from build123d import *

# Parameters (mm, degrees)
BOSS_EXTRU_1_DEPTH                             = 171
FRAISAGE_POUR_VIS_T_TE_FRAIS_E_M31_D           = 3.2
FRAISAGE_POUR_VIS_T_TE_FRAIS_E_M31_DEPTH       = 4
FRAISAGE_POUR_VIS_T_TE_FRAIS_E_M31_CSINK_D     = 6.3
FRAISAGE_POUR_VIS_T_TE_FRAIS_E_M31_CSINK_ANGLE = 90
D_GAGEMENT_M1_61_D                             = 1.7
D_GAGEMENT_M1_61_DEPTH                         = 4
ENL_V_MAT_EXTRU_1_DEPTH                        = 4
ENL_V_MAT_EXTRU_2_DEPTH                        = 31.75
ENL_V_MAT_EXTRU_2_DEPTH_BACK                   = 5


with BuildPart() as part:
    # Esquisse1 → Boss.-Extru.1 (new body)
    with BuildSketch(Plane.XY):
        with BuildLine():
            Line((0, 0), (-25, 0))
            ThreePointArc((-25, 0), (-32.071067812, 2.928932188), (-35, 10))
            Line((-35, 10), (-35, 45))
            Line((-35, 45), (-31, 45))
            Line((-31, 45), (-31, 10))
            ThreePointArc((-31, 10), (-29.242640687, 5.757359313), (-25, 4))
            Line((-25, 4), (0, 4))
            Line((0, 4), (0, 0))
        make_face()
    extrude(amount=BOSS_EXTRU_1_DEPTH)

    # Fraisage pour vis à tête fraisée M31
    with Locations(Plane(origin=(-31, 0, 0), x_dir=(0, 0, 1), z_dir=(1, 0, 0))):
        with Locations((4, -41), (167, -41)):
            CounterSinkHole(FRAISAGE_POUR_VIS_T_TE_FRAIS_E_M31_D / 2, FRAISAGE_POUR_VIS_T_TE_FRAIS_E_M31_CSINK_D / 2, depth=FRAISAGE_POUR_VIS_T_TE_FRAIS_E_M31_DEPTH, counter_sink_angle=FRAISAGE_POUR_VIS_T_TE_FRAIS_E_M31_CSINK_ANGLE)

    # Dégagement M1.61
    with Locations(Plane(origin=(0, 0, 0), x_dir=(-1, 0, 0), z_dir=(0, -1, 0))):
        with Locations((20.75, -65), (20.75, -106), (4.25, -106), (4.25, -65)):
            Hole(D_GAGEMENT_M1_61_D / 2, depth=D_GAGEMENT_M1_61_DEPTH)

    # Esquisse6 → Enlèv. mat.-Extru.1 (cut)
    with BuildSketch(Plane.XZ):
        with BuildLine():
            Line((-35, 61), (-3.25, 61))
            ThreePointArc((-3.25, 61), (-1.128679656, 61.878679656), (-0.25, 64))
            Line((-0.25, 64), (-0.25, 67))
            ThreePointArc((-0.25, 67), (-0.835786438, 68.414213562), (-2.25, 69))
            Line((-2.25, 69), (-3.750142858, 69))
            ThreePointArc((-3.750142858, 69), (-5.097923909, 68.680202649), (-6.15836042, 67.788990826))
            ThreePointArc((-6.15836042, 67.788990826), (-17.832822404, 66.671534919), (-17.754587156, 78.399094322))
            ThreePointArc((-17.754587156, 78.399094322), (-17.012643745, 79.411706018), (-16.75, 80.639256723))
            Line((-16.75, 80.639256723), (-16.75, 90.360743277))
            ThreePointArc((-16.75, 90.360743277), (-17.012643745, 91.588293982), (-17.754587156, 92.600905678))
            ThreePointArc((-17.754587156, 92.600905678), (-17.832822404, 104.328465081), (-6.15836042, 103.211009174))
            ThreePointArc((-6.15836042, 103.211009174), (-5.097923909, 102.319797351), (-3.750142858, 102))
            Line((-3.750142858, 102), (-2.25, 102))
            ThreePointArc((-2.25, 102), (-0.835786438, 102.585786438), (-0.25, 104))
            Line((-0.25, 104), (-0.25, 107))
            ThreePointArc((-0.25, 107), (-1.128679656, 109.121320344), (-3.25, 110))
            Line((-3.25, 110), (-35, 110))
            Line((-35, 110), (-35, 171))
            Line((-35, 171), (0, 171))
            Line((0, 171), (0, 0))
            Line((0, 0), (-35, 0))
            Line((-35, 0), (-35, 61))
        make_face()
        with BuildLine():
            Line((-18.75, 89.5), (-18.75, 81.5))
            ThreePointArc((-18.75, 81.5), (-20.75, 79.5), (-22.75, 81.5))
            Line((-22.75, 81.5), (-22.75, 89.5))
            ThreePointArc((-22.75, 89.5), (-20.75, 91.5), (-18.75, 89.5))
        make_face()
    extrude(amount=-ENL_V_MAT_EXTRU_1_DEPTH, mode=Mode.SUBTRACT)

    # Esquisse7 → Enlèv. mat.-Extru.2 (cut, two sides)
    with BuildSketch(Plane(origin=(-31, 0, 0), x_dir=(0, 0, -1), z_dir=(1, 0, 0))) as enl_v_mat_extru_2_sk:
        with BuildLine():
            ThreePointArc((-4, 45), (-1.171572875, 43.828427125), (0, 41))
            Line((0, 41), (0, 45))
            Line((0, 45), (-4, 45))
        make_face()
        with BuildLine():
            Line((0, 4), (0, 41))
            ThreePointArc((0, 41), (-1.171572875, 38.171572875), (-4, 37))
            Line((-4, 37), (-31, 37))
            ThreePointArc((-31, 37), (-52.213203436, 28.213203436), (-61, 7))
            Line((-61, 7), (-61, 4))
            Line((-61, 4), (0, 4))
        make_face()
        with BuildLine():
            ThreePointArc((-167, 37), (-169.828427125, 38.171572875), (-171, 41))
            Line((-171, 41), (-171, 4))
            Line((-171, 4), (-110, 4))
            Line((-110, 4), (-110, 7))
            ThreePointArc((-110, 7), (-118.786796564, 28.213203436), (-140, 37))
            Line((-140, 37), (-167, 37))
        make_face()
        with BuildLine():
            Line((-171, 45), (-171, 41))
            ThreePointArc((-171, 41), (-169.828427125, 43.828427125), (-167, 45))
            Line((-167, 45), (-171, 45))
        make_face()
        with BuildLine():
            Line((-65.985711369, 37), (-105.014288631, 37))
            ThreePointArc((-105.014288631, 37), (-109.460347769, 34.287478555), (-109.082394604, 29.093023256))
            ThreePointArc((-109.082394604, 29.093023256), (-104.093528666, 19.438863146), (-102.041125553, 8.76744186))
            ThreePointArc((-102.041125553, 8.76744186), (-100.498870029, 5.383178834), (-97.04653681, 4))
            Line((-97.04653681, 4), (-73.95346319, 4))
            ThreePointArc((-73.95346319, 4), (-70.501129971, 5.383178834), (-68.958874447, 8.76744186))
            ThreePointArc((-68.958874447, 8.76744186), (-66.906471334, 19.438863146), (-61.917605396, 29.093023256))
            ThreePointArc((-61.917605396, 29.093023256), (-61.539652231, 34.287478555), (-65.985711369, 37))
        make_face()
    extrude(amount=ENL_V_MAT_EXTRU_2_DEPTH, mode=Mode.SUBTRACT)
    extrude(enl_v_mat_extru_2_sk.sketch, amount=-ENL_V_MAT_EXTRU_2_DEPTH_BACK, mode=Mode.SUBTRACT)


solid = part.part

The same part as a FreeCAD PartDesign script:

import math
import FreeCAD as App
import Part
import Sketcher
from FreeCAD import Vector
Q = App.Units.Quantity

doc = App.newDocument("Part")
body = doc.addObject("PartDesign::Body", "Body")

sketch1 = body.newObject("Sketcher::SketchObject", "Sketch")
sketch1.AttachmentSupport = (doc.getObject("XY_Plane"), [""])
sketch1.MapMode = "FlatFace"
sketch1.addGeometry(Part.LineSegment(Vector(-25, 0, 0), Vector(0, 0, 0)), False)
sketch1.addGeometry(Part.LineSegment(Vector(0, 0, 0), Vector(0, 4, 0)), False)
sketch1.addGeometry(Part.LineSegment(Vector(0, 4, 0), Vector(-25, 4, 0)), False)
sketch1.addGeometry(Part.ArcOfCircle(Part.Circle(Vector(-25, 10, 0), Vector(0, 0, 1), 6), math.radians(180), math.radians(270)), False)
sketch1.addGeometry(Part.LineSegment(Vector(-31, 10, 0), Vector(-31, 45, 0)), False)
sketch1.addGeometry(Part.LineSegment(Vector(-31, 45, 0), Vector(-35, 45, 0)), False)
sketch1.addGeometry(Part.LineSegment(Vector(-35, 45, 0), Vector(-35, 10, 0)), False)
sketch1.addGeometry(Part.ArcOfCircle(Part.Circle(Vector(-25, 10, 0), Vector(0, 0, 1), 10), math.radians(180), math.radians(270)), False)
sketch1.addConstraint(Sketcher.Constraint("Coincident", 0, 2, 1, 1))
sketch1.addConstraint(Sketcher.Constraint("Coincident", 1, 2, 2, 1))
sketch1.addConstraint(Sketcher.Constraint("Tangent", 2, 2, 3, 2))
sketch1.addConstraint(Sketcher.Constraint("Tangent", 3, 1, 4, 1))
sketch1.addConstraint(Sketcher.Constraint("Coincident", 4, 2, 5, 1))
sketch1.addConstraint(Sketcher.Constraint("Coincident", 5, 2, 6, 1))
sketch1.addConstraint(Sketcher.Constraint("Tangent", 6, 2, 7, 1))
sketch1.addConstraint(Sketcher.Constraint("Tangent", 7, 2, 0, 1))
sketch1.addConstraint(Sketcher.Constraint("Horizontal", 0))
sketch1.addConstraint(Sketcher.Constraint("Vertical", 1))
sketch1.addConstraint(Sketcher.Constraint("Horizontal", 2))
sketch1.addConstraint(Sketcher.Constraint("Vertical", 4))
sketch1.addConstraint(Sketcher.Constraint("Horizontal", 5))
sketch1.addConstraint(Sketcher.Constraint("Vertical", 6))
sketch1.addConstraint(Sketcher.Constraint("Coincident", 0, 2, -1, 1))
sketch1.addConstraint(Sketcher.Constraint("Coincident", 7, 3, 3, 3))
sketch1.addConstraint(Sketcher.Constraint("Radius", 3, Q("6 mm")))
sketch1.addConstraint(Sketcher.Constraint("Radius", 7, Q("10 mm")))
sketch1.addConstraint(Sketcher.Constraint("DistanceX", 0, 1, 0, 2, Q("25 mm")))
sketch1.addConstraint(Sketcher.Constraint("DistanceY", 4, 1, 4, 2, Q("35 mm")))
pad1 = body.newObject("PartDesign::Pad", "Pad")
pad1.Profile = sketch1
pad1.Length = 171

sketch2 = body.newObject("Sketcher::SketchObject", "Sketch001")
sketch2.AttachmentSupport = (doc.getObject("YZ_Plane"), [""])
sketch2.MapMode = "FlatFace"
sketch2.AttachmentOffset = App.Placement(Vector(0, 0, -31), App.Rotation())
sketch2.addGeometry(Part.Circle(Vector(41, 4, 0), Vector(0, 0, 1), 1.6), False)
sketch2.addGeometry(Part.Circle(Vector(41, 167, 0), Vector(0, 0, 1), 1.6), False)
sketch2.addConstraint(Sketcher.Constraint("Equal", 0, 1))
sketch2.addConstraint(Sketcher.Constraint("Vertical", 0, 3, 1, 3))
sketch2.addConstraint(Sketcher.Constraint("Diameter", 0, Q("3.2 mm")))
sketch2.addConstraint(Sketcher.Constraint("DistanceX", -1, 1, 0, 3, Q("41 mm")))
sketch2.addConstraint(Sketcher.Constraint("DistanceY", -1, 1, 0, 3, Q("4 mm")))
sketch2.addConstraint(Sketcher.Constraint("DistanceY", -1, 1, 1, 3, Q("167 mm")))
doc.recompute()
hole = body.newObject("PartDesign::Hole", "Hole")
hole.Profile = sketch2
hole.ThreadType = "None"
hole.Diameter = 3.2
hole.DepthType = "Dimension"
hole.Depth = 4
hole.DrillPoint = "Flat"
hole.HoleCutType = "Countersink"
hole.HoleCutDiameter = 6.3
hole.HoleCutCountersinkAngle = 90

sketch3 = body.newObject("Sketcher::SketchObject", "Sketch002")
sketch3.AttachmentSupport = (doc.getObject("XZ_Plane"), [""])
sketch3.MapMode = "FlatFace"
sketch3.addGeometry(Part.Circle(Vector(-20.8, 65, 0), Vector(0, 0, 1), 0.8), False)
sketch3.addGeometry(Part.Circle(Vector(-20.8, 106, 0), Vector(0, 0, 1), 0.8), False)
sketch3.addGeometry(Part.Circle(Vector(-4.2, 106, 0), Vector(0, 0, 1), 0.8), False)
sketch3.addGeometry(Part.Circle(Vector(-4.2, 65, 0), Vector(0, 0, 1), 0.8), False)
sketch3.addConstraint(Sketcher.Constraint("Equal", 0, 1))
sketch3.addConstraint(Sketcher.Constraint("Equal", 1, 2))
sketch3.addConstraint(Sketcher.Constraint("Equal", 2, 3))
sketch3.addConstraint(Sketcher.Constraint("Horizontal", 1, 3, 2, 3))
sketch3.addConstraint(Sketcher.Constraint("Horizontal", 0, 3, 3, 3))
sketch3.addConstraint(Sketcher.Constraint("Vertical", 0, 3, 1, 3))
sketch3.addConstraint(Sketcher.Constraint("Vertical", 2, 3, 3, 3))
sketch3.addConstraint(Sketcher.Constraint("Diameter", 0, Q("1.7 mm")))
sketch3.addConstraint(Sketcher.Constraint("DistanceY", -1, 1, 0, 3, Q("65 mm")))
sketch3.addConstraint(Sketcher.Constraint("DistanceY", -1, 1, 1, 3, Q("106 mm")))
sketch3.addConstraint(Sketcher.Constraint("DistanceX", 1, 3, 2, 3, Q("16.5 mm")))
sketch3.addConstraint(Sketcher.Constraint("DistanceX", 0, 3, -1, 1, Q("20.75 mm")))
doc.recompute()
hole2 = body.newObject("PartDesign::Hole", "Hole001")
hole2.Profile = sketch3
hole2.ThreadType = "None"
hole2.Diameter = 1.7
hole2.DepthType = "Dimension"
hole2.Depth = 4
hole2.DrillPoint = "Flat"

sketch4 = body.newObject("Sketcher::SketchObject", "Sketch003")
sketch4.AttachmentSupport = (doc.getObject("XZ_Plane"), [""])
sketch4.MapMode = "FlatFace"
sketch4.addGeometry(Part.LineSegment(Vector(-3.2, 61, 0), Vector(-35, 61, 0)), False)
sketch4.addGeometry(Part.LineSegment(Vector(-35, 61, 0), Vector(-35, 0, 0)), False)
sketch4.addGeometry(Part.LineSegment(Vector(-35, 0, 0), Vector(0, 0, 0)), False)
sketch4.addGeometry(Part.LineSegment(Vector(0, 0, 0), Vector(0, 171, 0)), False)
sketch4.addGeometry(Part.LineSegment(Vector(0, 171, 0), Vector(-35, 171, 0)), False)
sketch4.addGeometry(Part.LineSegment(Vector(-35, 171, 0), Vector(-35, 110, 0)), False)
sketch4.addGeometry(Part.LineSegment(Vector(-35, 110, 0), Vector(-3.2, 110, 0)), False)
sketch4.addGeometry(Part.ArcOfCircle(Part.Circle(Vector(-3.2, 107, 0), Vector(0, 0, 1), 3), math.radians(0), math.radians(90)), False)
sketch4.addGeometry(Part.LineSegment(Vector(-0.2, 107, 0), Vector(-0.2, 104, 0)), False)
sketch4.addGeometry(Part.ArcOfCircle(Part.Circle(Vector(-2.3, 104, 0), Vector(0, 0, 1), 2), math.radians(-90), math.radians(0)), False)
sketch4.addGeometry(Part.LineSegment(Vector(-2.2, 102, 0), Vector(-3.8, 102, 0)), False)
sketch4.addGeometry(Part.ArcOfCircle(Part.Circle(Vector(-3.8, 105, 0), Vector(0, 0, 1), 3), math.radians(-143), math.radians(-90)), False)
sketch4.addGeometry(Part.ArcOfCircle(Part.Circle(Vector(-12.5, 98.5, 0), Vector(0, 0, 1), 7.9), math.radians(37), math.radians(228)), False)
sketch4.addGeometry(Part.ArcOfCircle(Part.Circle(Vector(-19.8, 90.4, 0), Vector(0, 0, 1), 3), math.radians(0), math.radians(48)), False)
sketch4.addGeometry(Part.LineSegment(Vector(-16.8, 90.4, 0), Vector(-16.8, 80.6, 0)), False)
sketch4.addGeometry(Part.ArcOfCircle(Part.Circle(Vector(-19.8, 80.6, 0), Vector(0, 0, 1), 3), math.radians(-48), math.radians(0)), False)
sketch4.addGeometry(Part.ArcOfCircle(Part.Circle(Vector(-12.5, 72.5, 0), Vector(0, 0, 1), 7.9), math.radians(132), math.radians(323)), False)
sketch4.addGeometry(Part.ArcOfCircle(Part.Circle(Vector(-3.8, 66, 0), Vector(0, 0, 1), 3), math.radians(90), math.radians(143)), False)
sketch4.addGeometry(Part.LineSegment(Vector(-3.8, 69, 0), Vector(-2.2, 69, 0)), False)
sketch4.addGeometry(Part.ArcOfCircle(Part.Circle(Vector(-2.3, 67, 0), Vector(0, 0, 1), 2), math.radians(0), math.radians(90)), False)
sketch4.addGeometry(Part.LineSegment(Vector(-0.2, 67, 0), Vector(-0.2, 64, 0)), False)
sketch4.addGeometry(Part.ArcOfCircle(Part.Circle(Vector(-3.2, 64, 0), Vector(0, 0, 1), 3), math.radians(-90), math.radians(0)), False)
sketch4.addGeometry(Part.LineSegment(Vector(-18.8, 81.5, 0), Vector(-18.8, 89.5, 0)), False)
sketch4.addGeometry(Part.ArcOfCircle(Part.Circle(Vector(-20.8, 89.5, 0), Vector(0, 0, 1), 2), math.radians(0), math.radians(180)), False)
sketch4.addGeometry(Part.LineSegment(Vector(-22.8, 89.5, 0), Vector(-22.8, 81.5, 0)), False)
sketch4.addGeometry(Part.ArcOfCircle(Part.Circle(Vector(-20.8, 81.5, 0), Vector(0, 0, 1), 2), math.radians(180), math.radians(360)), False)
sketch4.addConstraint(Sketcher.Constraint("Coincident", 0, 2, 1, 1))
sketch4.addConstraint(Sketcher.Constraint("Coincident", 1, 2, 2, 1))
sketch4.addConstraint(Sketcher.Constraint("Coincident", 2, 2, 3, 1))
sketch4.addConstraint(Sketcher.Constraint("Coincident", 3, 2, 4, 1))
sketch4.addConstraint(Sketcher.Constraint("Coincident", 4, 2, 5, 1))
sketch4.addConstraint(Sketcher.Constraint("Coincident", 5, 2, 6, 1))
sketch4.addConstraint(Sketcher.Constraint("Tangent", 6, 2, 7, 2))
sketch4.addConstraint(Sketcher.Constraint("Tangent", 7, 1, 8, 1))
sketch4.addConstraint(Sketcher.Constraint("Tangent", 8, 2, 9, 2))
sketch4.addConstraint(Sketcher.Constraint("Tangent", 9, 1, 10, 1))
sketch4.addConstraint(Sketcher.Constraint("Tangent", 10, 2, 11, 2))
sketch4.addConstraint(Sketcher.Constraint("Tangent", 11, 1, 12, 1))
sketch4.addConstraint(Sketcher.Constraint("Tangent", 12, 2, 13, 2))
sketch4.addConstraint(Sketcher.Constraint("Tangent", 13, 1, 14, 1))
sketch4.addConstraint(Sketcher.Constraint("Tangent", 14, 2, 15, 2))
sketch4.addConstraint(Sketcher.Constraint("Tangent", 15, 1, 16, 1))
sketch4.addConstraint(Sketcher.Constraint("Tangent", 16, 2, 17, 2))
sketch4.addConstraint(Sketcher.Constraint("Tangent", 17, 1, 18, 1))
sketch4.addConstraint(Sketcher.Constraint("Tangent", 18, 2, 19, 2))
sketch4.addConstraint(Sketcher.Constraint("Tangent", 19, 1, 20, 1))
sketch4.addConstraint(Sketcher.Constraint("Tangent", 20, 2, 21, 2))
sketch4.addConstraint(Sketcher.Constraint("Tangent", 21, 1, 0, 1))
sketch4.addConstraint(Sketcher.Constraint("Tangent", 22, 2, 23, 1))
sketch4.addConstraint(Sketcher.Constraint("Tangent", 23, 2, 24, 1))
sketch4.addConstraint(Sketcher.Constraint("Tangent", 24, 2, 25, 1))
sketch4.addConstraint(Sketcher.Constraint("Tangent", 25, 2, 22, 1))
sketch4.addConstraint(Sketcher.Constraint("Horizontal", 0))
sketch4.addConstraint(Sketcher.Constraint("Vertical", 1))
sketch4.addConstraint(Sketcher.Constraint("Horizontal", 2))
sketch4.addConstraint(Sketcher.Constraint("Vertical", 3))
sketch4.addConstraint(Sketcher.Constraint("Horizontal", 4))
sketch4.addConstraint(Sketcher.Constraint("Vertical", 5))
sketch4.addConstraint(Sketcher.Constraint("Horizontal", 6))
sketch4.addConstraint(Sketcher.Constraint("Vertical", 8))
sketch4.addConstraint(Sketcher.Constraint("Horizontal", 10))
sketch4.addConstraint(Sketcher.Constraint("Vertical", 14))
sketch4.addConstraint(Sketcher.Constraint("Horizontal", 18))
sketch4.addConstraint(Sketcher.Constraint("Vertical", 20))
sketch4.addConstraint(Sketcher.Constraint("Vertical", 22))
sketch4.addConstraint(Sketcher.Constraint("Vertical", 24))
sketch4.addConstraint(Sketcher.Constraint("Coincident", 2, 2, -1, 1))
sketch4.addConstraint(Sketcher.Constraint("Equal", 7, 11))
sketch4.addConstraint(Sketcher.Constraint("Equal", 11, 13))
sketch4.addConstraint(Sketcher.Constraint("Equal", 13, 15))
sketch4.addConstraint(Sketcher.Constraint("Equal", 12, 16))
sketch4.addConstraint(Sketcher.Constraint("Equal", 15, 17))
sketch4.addConstraint(Sketcher.Constraint("Equal", 9, 19))
sketch4.addConstraint(Sketcher.Constraint("Equal", 17, 21))
sketch4.addConstraint(Sketcher.Constraint("Equal", 19, 23))
sketch4.addConstraint(Sketcher.Constraint("Vertical", 12, 3, 16, 3))
sketch4.addConstraint(Sketcher.Constraint("Vertical", 11, 3, 17, 3))
sketch4.addConstraint(Sketcher.Constraint("Vertical", 9, 3, 19, 3))
sketch4.addConstraint(Sketcher.Constraint("Vertical", 1, 2, 4, 2))
sketch4.addConstraint(Sketcher.Constraint("Equal", 1, 5))
sketch4.addConstraint(Sketcher.Constraint("Equal", 8, 20))
sketch4.addConstraint(Sketcher.Constraint("Radius", 7, Q("3 mm")))
sketch4.addConstraint(Sketcher.Constraint("Radius", 9, Q("2 mm")))
sketch4.addConstraint(Sketcher.Constraint("Radius", 12, Q("7.9 mm")))
sketch4.addConstraint(Sketcher.Constraint("DistanceX", 2, 1, 2, 2, Q("35 mm")))
sketch4.addConstraint(Sketcher.Constraint("DistanceY", 1, 2, 1, 1, Q("61 mm")))
sketch4.addConstraint(Sketcher.Constraint("DistanceY", 3, 1, 3, 2, Q("171 mm")))
sketch4.addConstraint(Sketcher.Constraint("DistanceY", 8, 2, 8, 1, Q("3 mm")))
sketch4.addConstraint(Sketcher.Constraint("DistanceY", 22, 1, 22, 2, Q("8 mm")))
sketch4.addConstraint(Sketcher.Constraint("DistanceY", 16, 3, 12, 3, Q("26 mm")))
sketch4.addConstraint(Sketcher.Constraint("DistanceX", 23, 3, 13, 3, Q("1 mm")))
sketch4.addConstraint(Sketcher.Constraint("DistanceY", 23, 3, 12, 3, Q("9 mm")))
sketch4.addConstraint(Sketcher.Constraint("DistanceX", 0, 2, 0, 1, Q("31.75 mm")))
sketch4.addConstraint(Sketcher.Constraint("DistanceX", 12, 3, -1, 1, Q("12.5 mm")))
sketch4.addConstraint(Sketcher.Constraint("DistanceX", 13, 3, 9, 3, Q("17.5 mm")))
pocket1 = body.newObject("PartDesign::Pocket", "Pocket")
pocket1.Profile = sketch4
pocket1.Length = 4

sketch5 = body.newObject("Sketcher::SketchObject", "Sketch004")
sketch5.AttachmentSupport = (doc.getObject("YZ_Plane"), [""])
sketch5.MapMode = "FlatFace"
sketch5.AttachmentOffset = App.Placement(Vector(0, 0, -31), App.Rotation())
sketch5.addGeometry(Part.ArcOfCircle(Part.Circle(Vector(41, 4, 0), Vector(0, 0, 1), 4), math.radians(-90), math.radians(0)), False)
sketch5.addGeometry(Part.LineSegment(Vector(41, 0, 0), Vector(45, 0, 0)), False)
sketch5.addGeometry(Part.LineSegment(Vector(45, 0, 0), Vector(45, 4, 0)), False)
sketch5.addGeometry(Part.LineSegment(Vector(4, 0, 0), Vector(41, 0, 0)), False)
sketch5.addGeometry(Part.ArcOfCircle(Part.Circle(Vector(41, 4, 0), Vector(0, 0, 1), 4), math.radians(180), math.radians(270)), False)
sketch5.addGeometry(Part.LineSegment(Vector(37, 4, 0), Vector(37, 31, 0)), False)
sketch5.addGeometry(Part.ArcOfCircle(Part.Circle(Vector(7, 31, 0), Vector(0, 0, 1), 30), math.radians(0), math.radians(90)), False)
sketch5.addGeometry(Part.LineSegment(Vector(7, 61, 0), Vector(4, 61, 0)), False)
sketch5.addGeometry(Part.LineSegment(Vector(4, 61, 0), Vector(4, 0, 0)), False)
sketch5.addGeometry(Part.ArcOfCircle(Part.Circle(Vector(41, 167, 0), Vector(0, 0, 1), 4), math.radians(90), math.radians(180)), False)
sketch5.addGeometry(Part.LineSegment(Vector(41, 171, 0), Vector(4, 171, 0)), False)
sketch5.addGeometry(Part.LineSegment(Vector(4, 171, 0), Vector(4, 110, 0)), False)
sketch5.addGeometry(Part.LineSegment(Vector(4, 110, 0), Vector(7, 110, 0)), False)
sketch5.addGeometry(Part.ArcOfCircle(Part.Circle(Vector(7, 140, 0), Vector(0, 0, 1), 30), math.radians(-90), math.radians(0)), False)
sketch5.addGeometry(Part.LineSegment(Vector(37, 140, 0), Vector(37, 167, 0)), False)
sketch5.addGeometry(Part.LineSegment(Vector(45, 171, 0), Vector(41, 171, 0)), False)
sketch5.addGeometry(Part.ArcOfCircle(Part.Circle(Vector(41, 167, 0), Vector(0, 0, 1), 4), math.radians(0), math.radians(90)), False)
sketch5.addGeometry(Part.LineSegment(Vector(45, 167, 0), Vector(45, 171, 0)), False)
sketch5.addGeometry(Part.LineSegment(Vector(37, 66, 0), Vector(37, 105, 0)), False)
sketch5.addGeometry(Part.ArcOfCircle(Part.Circle(Vector(32, 105, 0), Vector(0, 0, 1), 5), math.radians(0), math.radians(126)), False)
sketch5.addGeometry(Part.ArcOfCircle(Part.Circle(Vector(7, 140, 0), Vector(0, 0, 1), 38), math.radians(-87), math.radians(-54)), False)
sketch5.addGeometry(Part.ArcOfCircle(Part.Circle(Vector(9, 97, 0), Vector(0, 0, 1), 5), math.radians(93), math.radians(180)), False)
sketch5.addGeometry(Part.LineSegment(Vector(4, 97, 0), Vector(4, 74, 0)), False)
sketch5.addGeometry(Part.ArcOfCircle(Part.Circle(Vector(9, 74, 0), Vector(0, 0, 1), 5), math.radians(180), math.radians(267)), False)
sketch5.addGeometry(Part.ArcOfCircle(Part.Circle(Vector(7, 31, 0), Vector(0, 0, 1), 38), math.radians(54), math.radians(87)), False)
sketch5.addGeometry(Part.ArcOfCircle(Part.Circle(Vector(32, 66, 0), Vector(0, 0, 1), 5), math.radians(-126), math.radians(0)), False)
sketch5.addConstraint(Sketcher.Constraint("Tangent", 0, 1, 1, 1))
sketch5.addConstraint(Sketcher.Constraint("Coincident", 1, 2, 2, 1))
sketch5.addConstraint(Sketcher.Constraint("Tangent", 2, 2, 0, 2))
sketch5.addConstraint(Sketcher.Constraint("Tangent", 3, 2, 4, 2))
sketch5.addConstraint(Sketcher.Constraint("Tangent", 4, 1, 5, 1))
sketch5.addConstraint(Sketcher.Constraint("Tangent", 5, 2, 6, 1))
sketch5.addConstraint(Sketcher.Constraint("Tangent", 6, 2, 7, 1))
sketch5.addConstraint(Sketcher.Constraint("Coincident", 7, 2, 8, 1))
sketch5.addConstraint(Sketcher.Constraint("Coincident", 8, 2, 3, 1))
sketch5.addConstraint(Sketcher.Constraint("Tangent", 9, 1, 10, 1))
sketch5.addConstraint(Sketcher.Constraint("Coincident", 10, 2, 11, 1))
sketch5.addConstraint(Sketcher.Constraint("Coincident", 11, 2, 12, 1))
sketch5.addConstraint(Sketcher.Constraint("Tangent", 12, 2, 13, 1))
sketch5.addConstraint(Sketcher.Constraint("Tangent", 13, 2, 14, 1))
sketch5.addConstraint(Sketcher.Constraint("Tangent", 14, 2, 9, 2))
sketch5.addConstraint(Sketcher.Constraint("Tangent", 15, 2, 16, 2))
sketch5.addConstraint(Sketcher.Constraint("Tangent", 16, 1, 17, 1))
sketch5.addConstraint(Sketcher.Constraint("Coincident", 17, 2, 15, 1))
sketch5.addConstraint(Sketcher.Constraint("Tangent", 18, 2, 19, 1))
sketch5.addConstraint(Sketcher.Constraint("Tangent", 19, 2, 20, 2))
sketch5.addConstraint(Sketcher.Constraint("Tangent", 20, 1, 21, 1))
sketch5.addConstraint(Sketcher.Constraint("Tangent", 21, 2, 22, 1))
sketch5.addConstraint(Sketcher.Constraint("Tangent", 22, 2, 23, 1))
sketch5.addConstraint(Sketcher.Constraint("Tangent", 23, 2, 24, 2))
sketch5.addConstraint(Sketcher.Constraint("Tangent", 24, 1, 25, 1))
sketch5.addConstraint(Sketcher.Constraint("Tangent", 25, 2, 18, 1))
sketch5.addConstraint(Sketcher.Constraint("Horizontal", 1))
sketch5.addConstraint(Sketcher.Constraint("Vertical", 2))
sketch5.addConstraint(Sketcher.Constraint("Horizontal", 3))
sketch5.addConstraint(Sketcher.Constraint("Vertical", 5))
sketch5.addConstraint(Sketcher.Constraint("Horizontal", 7))
sketch5.addConstraint(Sketcher.Constraint("Vertical", 8))
sketch5.addConstraint(Sketcher.Constraint("Horizontal", 10))
sketch5.addConstraint(Sketcher.Constraint("Vertical", 11))
sketch5.addConstraint(Sketcher.Constraint("Horizontal", 12))
sketch5.addConstraint(Sketcher.Constraint("Vertical", 14))
sketch5.addConstraint(Sketcher.Constraint("Horizontal", 15))
sketch5.addConstraint(Sketcher.Constraint("Vertical", 17))
sketch5.addConstraint(Sketcher.Constraint("Vertical", 18))
sketch5.addConstraint(Sketcher.Constraint("Vertical", 22))
sketch5.addConstraint(Sketcher.Constraint("Coincident", 4, 3, 0, 3))
sketch5.addConstraint(Sketcher.Constraint("Coincident", 16, 3, 9, 3))
sketch5.addConstraint(Sketcher.Constraint("Coincident", 20, 3, 13, 3))
sketch5.addConstraint(Sketcher.Constraint("Coincident", 24, 3, 6, 3))
sketch5.addConstraint(Sketcher.Constraint("Equal", 0, 4))
sketch5.addConstraint(Sketcher.Constraint("Equal", 4, 9))
sketch5.addConstraint(Sketcher.Constraint("Equal", 6, 13))
sketch5.addConstraint(Sketcher.Constraint("Equal", 9, 16))
sketch5.addConstraint(Sketcher.Constraint("Equal", 19, 21))
sketch5.addConstraint(Sketcher.Constraint("Equal", 21, 23))
sketch5.addConstraint(Sketcher.Constraint("Equal", 20, 24))
sketch5.addConstraint(Sketcher.Constraint("Equal", 23, 25))
sketch5.addConstraint(Sketcher.Constraint("PointOnObject", 0, 1, -1))
sketch5.addConstraint(Sketcher.Constraint("Vertical", 4, 3, 9, 3))
sketch5.addConstraint(Sketcher.Constraint("Vertical", 8, 2, 10, 2))
sketch5.addConstraint(Sketcher.Constraint("Vertical", 14, 2, 18, 2))
sketch5.addConstraint(Sketcher.Constraint("Vertical", 11, 2, 21, 2))
sketch5.addConstraint(Sketcher.Constraint("Equal", 8, 11))
sketch5.addConstraint(Sketcher.Constraint("Radius", 0, Q("4 mm")))
sketch5.addConstraint(Sketcher.Constraint("Radius", 6, Q("30 mm")))
sketch5.addConstraint(Sketcher.Constraint("Radius", 19, Q("5 mm")))
sketch5.addConstraint(Sketcher.Constraint("Radius", 20, Q("38 mm")))
sketch5.addConstraint(Sketcher.Constraint("DistanceX", 3, 1, 3, 2, Q("37 mm")))
sketch5.addConstraint(Sketcher.Constraint("DistanceY", 5, 1, 5, 2, Q("27 mm")))
sketch5.addConstraint(Sketcher.Constraint("DistanceX", -1, 1, 0, 3, Q("41 mm")))
sketch5.addConstraint(Sketcher.Constraint("DistanceY", -1, 1, 9, 3, Q("167 mm")))
pocket2 = body.newObject("PartDesign::Pocket", "Pocket001")
pocket2.Profile = sketch5
pocket2.Type = "ThroughAll"
pocket2.Midplane = True

doc.recompute()
